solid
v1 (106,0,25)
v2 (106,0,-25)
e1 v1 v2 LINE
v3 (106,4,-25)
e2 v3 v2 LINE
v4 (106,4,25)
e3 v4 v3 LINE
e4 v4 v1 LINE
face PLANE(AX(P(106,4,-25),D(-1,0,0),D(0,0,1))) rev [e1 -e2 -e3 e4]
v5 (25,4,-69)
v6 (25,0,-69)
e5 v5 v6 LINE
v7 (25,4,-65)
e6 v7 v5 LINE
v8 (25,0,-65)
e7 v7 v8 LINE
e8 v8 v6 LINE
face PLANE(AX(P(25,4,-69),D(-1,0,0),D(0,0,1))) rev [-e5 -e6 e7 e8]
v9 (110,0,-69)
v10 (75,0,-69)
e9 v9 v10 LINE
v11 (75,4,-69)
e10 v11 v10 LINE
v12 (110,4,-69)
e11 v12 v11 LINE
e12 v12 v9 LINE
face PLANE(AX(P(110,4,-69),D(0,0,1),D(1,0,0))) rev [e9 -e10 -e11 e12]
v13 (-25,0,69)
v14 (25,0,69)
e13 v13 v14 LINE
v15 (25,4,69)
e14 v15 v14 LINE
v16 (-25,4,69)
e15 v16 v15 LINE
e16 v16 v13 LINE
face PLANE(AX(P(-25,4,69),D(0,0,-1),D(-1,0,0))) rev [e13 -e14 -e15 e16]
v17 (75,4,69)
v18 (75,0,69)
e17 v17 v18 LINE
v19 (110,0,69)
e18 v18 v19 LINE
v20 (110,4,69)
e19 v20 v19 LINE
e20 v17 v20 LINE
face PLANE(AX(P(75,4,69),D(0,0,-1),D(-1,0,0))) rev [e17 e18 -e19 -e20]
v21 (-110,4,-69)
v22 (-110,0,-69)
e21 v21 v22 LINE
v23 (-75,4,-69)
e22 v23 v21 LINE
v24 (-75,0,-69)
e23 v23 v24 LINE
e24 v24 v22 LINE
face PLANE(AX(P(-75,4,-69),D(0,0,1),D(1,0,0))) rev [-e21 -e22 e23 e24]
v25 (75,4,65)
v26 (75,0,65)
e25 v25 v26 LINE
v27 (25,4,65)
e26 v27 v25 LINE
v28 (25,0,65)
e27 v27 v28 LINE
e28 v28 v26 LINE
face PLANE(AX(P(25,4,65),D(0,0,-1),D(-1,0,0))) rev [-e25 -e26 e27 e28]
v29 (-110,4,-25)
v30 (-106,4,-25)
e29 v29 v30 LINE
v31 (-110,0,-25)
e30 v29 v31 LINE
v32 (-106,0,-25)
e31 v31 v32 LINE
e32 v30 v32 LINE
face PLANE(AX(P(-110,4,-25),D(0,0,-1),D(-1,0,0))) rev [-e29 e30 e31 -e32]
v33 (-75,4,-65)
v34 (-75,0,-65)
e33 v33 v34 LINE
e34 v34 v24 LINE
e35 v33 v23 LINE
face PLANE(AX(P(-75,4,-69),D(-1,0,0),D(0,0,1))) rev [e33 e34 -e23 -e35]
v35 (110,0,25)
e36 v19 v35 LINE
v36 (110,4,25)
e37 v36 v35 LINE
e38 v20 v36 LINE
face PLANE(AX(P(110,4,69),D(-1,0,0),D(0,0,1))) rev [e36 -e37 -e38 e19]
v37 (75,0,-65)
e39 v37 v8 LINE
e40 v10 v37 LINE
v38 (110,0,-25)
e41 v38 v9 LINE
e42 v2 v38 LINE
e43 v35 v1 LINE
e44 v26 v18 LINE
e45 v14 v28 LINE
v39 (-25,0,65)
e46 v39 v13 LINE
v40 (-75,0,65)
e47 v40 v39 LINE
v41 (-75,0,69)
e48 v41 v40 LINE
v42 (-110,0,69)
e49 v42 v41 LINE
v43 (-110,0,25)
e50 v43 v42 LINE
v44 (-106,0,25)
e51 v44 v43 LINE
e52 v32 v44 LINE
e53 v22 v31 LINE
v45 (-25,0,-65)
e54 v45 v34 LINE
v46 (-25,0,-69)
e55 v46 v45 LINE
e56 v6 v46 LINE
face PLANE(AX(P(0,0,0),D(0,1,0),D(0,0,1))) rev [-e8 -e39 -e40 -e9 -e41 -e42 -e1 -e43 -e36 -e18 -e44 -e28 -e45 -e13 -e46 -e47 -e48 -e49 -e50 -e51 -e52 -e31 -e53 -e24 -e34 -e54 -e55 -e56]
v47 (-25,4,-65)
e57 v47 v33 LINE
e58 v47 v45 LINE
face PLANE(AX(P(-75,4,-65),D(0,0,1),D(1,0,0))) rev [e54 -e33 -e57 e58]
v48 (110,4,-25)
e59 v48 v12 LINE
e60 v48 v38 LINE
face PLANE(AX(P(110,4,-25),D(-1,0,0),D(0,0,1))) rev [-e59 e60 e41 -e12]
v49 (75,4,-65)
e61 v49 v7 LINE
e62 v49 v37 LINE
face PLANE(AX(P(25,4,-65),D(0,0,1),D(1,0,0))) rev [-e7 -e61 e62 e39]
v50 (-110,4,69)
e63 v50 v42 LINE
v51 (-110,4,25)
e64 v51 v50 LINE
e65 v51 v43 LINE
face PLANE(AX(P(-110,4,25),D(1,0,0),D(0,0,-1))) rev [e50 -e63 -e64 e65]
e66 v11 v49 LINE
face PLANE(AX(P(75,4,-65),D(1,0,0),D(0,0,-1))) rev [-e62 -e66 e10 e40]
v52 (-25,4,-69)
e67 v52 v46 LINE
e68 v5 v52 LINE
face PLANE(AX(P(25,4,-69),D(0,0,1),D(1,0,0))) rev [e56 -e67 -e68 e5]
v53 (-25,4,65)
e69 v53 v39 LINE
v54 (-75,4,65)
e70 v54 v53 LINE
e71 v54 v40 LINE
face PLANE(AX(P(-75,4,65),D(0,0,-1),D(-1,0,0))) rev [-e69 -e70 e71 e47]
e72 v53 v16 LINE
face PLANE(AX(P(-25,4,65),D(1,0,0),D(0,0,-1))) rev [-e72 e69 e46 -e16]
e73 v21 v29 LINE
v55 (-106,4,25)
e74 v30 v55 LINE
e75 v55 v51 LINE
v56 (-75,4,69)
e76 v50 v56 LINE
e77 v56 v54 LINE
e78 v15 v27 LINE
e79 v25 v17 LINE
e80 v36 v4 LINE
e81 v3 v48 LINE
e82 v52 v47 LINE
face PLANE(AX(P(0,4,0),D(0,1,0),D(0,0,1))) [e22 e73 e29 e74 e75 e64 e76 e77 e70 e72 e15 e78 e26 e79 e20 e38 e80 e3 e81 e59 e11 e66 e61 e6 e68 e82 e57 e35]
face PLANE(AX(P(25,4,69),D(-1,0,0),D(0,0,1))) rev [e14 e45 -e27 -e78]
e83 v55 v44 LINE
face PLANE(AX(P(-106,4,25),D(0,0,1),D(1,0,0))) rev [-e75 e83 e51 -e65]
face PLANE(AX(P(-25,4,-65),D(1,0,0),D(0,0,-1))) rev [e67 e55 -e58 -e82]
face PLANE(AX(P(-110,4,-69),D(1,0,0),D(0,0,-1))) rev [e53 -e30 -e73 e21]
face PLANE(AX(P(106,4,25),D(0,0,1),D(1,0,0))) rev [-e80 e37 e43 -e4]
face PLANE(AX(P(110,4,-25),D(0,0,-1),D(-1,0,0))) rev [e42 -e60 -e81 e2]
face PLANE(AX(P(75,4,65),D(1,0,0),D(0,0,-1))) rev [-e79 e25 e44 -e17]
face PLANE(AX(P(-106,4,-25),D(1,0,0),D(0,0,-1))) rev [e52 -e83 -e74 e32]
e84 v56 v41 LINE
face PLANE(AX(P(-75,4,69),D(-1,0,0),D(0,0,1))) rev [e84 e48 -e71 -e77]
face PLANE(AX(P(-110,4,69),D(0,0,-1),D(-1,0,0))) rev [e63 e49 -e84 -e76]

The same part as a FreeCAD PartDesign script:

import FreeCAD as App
import Part
import Sketcher
from FreeCAD import Vector

doc = App.newDocument("Part")
body = doc.addObject("PartDesign::Body", "Body")

# Sketch on XZ plane
sketch1 = body.newObject("Sketcher::SketchObject", "Sketch")
sketch1.AttachmentSupport = (doc.getObject("XZ_Plane"), [""])
sketch1.MapMode = "FlatFace"
sketch1.addGeometry(Part.LineSegment(Vector(-110, -69, 0), Vector(-110, -25, 0)), False)
sketch1.addGeometry(Part.LineSegment(Vector(-110, -25, 0), Vector(-106, -25, 0)), False)
sketch1.addGeometry(Part.LineSegment(Vector(-106, -25, 0), Vector(-106, 25, 0)), False)
sketch1.addGeometry(Part.LineSegment(Vector(-106, 25, 0), Vector(-110, 25, 0)), False)
sketch1.addGeometry(Part.LineSegment(Vector(-110, 25, 0), Vector(-110, 69, 0)), False)
sketch1.addGeometry(Part.LineSegment(Vector(-110, 69, 0), Vector(-75, 69, 0)), False)
sketch1.addGeometry(Part.LineSegment(Vector(-75, 69, 0), Vector(-75, 65, 0)), False)
sketch1.addGeometry(Part.LineSegment(Vector(-75, 65, 0), Vector(-25, 65, 0)), False)
sketch1.addGeometry(Part.LineSegment(Vector(-25, 65, 0), Vector(-25, 69, 0)), False)
sketch1.addGeometry(Part.LineSegment(Vector(-25, 69, 0), Vector(25, 69, 0)), False)
sketch1.addGeometry(Part.LineSegment(Vector(25, 69, 0), Vector(25, 65, 0)), False)
sketch1.addGeometry(Part.LineSegment(Vector(25, 65, 0), Vector(75, 65, 0)), False)
sketch1.addGeometry(Part.LineSegment(Vector(75, 65, 0), Vector(75, 69, 0)), False)
sketch1.addGeometry(Part.LineSegment(Vector(75, 69, 0), Vector(110, 69, 0)), False)
sketch1.addGeometry(Part.LineSegment(Vector(110, 69, 0), Vector(110, 25, 0)), False)
sketch1.addGeometry(Part.LineSegment(Vector(110, 25, 0), Vector(106, 25, 0)), False)
sketch1.addGeometry(Part.LineSegment(Vector(106, 25, 0), Vector(106, -25, 0)), False)
sketch1.addGeometry(Part.LineSegment(Vector(106, -25, 0), Vector(110, -25, 0)), False)
sketch1.addGeometry(Part.LineSegment(Vector(110, -25, 0), Vector(110, -69, 0)), False)
sketch1.addGeometry(Part.LineSegment(Vector(110, -69, 0), Vector(75, -69, 0)), False)
sketch1.addGeometry(Part.LineSegment(Vector(75, -69, 0), Vector(75, -65, 0)), False)
sketch1.addGeometry(Part.LineSegment(Vector(75, -65, 0), Vector(25, -65, 0)), False)
sketch1.addGeometry(Part.LineSegment(Vector(25, -65, 0), Vector(25, -69, 0)), False)
sketch1.addGeometry(Part.LineSegment(Vector(25, -69, 0), Vector(-25, -69, 0)), False)
sketch1.addGeometry(Part.LineSegment(Vector(-25, -69, 0), Vector(-25, -65, 0)), False)
sketch1.addGeometry(Part.LineSegment(Vector(-25, -65, 0), Vector(-75, -65, 0)), False)
sketch1.addGeometry(Part.LineSegment(Vector(-75, -65, 0), Vector(-75, -69, 0)), False)
sketch1.addGeometry(Part.LineSegment(Vector(-75, -69, 0), Vector(-110, -69, 0)), False)
sketch1.addConstraint(Sketcher.Constraint("Coincident", 0, 2, 1, 1))
sketch1.addConstraint(Sketcher.Constraint("Coincident", 1, 2, 2, 1))
sketch1.addConstraint(Sketcher.Constraint("Coincident", 2, 2, 3, 1))
sketch1.addConstraint(Sketcher.Constraint("Coincident", 3, 2, 4, 1))
sketch1.addConstraint(Sketcher.Constraint("Coincident", 4, 2, 5, 1))
sketch1.addConstraint(Sketcher.Constraint("Coincident", 5, 2, 6, 1))
sketch1.addConstraint(Sketcher.Constraint("Coincident", 6, 2, 7, 1))
sketch1.addConstraint(Sketcher.Constraint("Coincident", 7, 2, 8, 1))
sketch1.addConstraint(Sketcher.Constraint("Coincident", 8, 2, 9, 1))
sketch1.addConstraint(Sketcher.Constraint("Coincident", 9, 2, 10, 1))
sketch1.addConstraint(Sketcher.Constraint("Coincident", 10, 2, 11, 1))
sketch1.addConstraint(Sketcher.Constraint("Coincident", 11, 2, 12, 1))
sketch1.addConstraint(Sketcher.Constraint("Coincident", 12, 2, 13, 1))
sketch1.addConstraint(Sketcher.Constraint("Coincident", 13, 2, 14, 1))
sketch1.addConstraint(Sketcher.Constraint("Coincident", 14, 2, 15, 1))
sketch1.addConstraint(Sketcher.Constraint("Coincident", 15, 2, 16, 1))
sketch1.addConstraint(Sketcher.Constraint("Coincident", 16, 2, 17, 1))
sketch1.addConstraint(Sketcher.Constraint("Coincident", 17, 2, 18, 1))
sketch1.addConstraint(Sketcher.Constraint("Coincident", 18, 2, 19, 1))
sketch1.addConstraint(Sketcher.Constraint("Coincident", 19, 2, 20, 1))
sketch1.addConstraint(Sketcher.Constraint("Coincident", 20, 2, 21, 1))
sketch1.addConstraint(Sketcher.Constraint("Coincident", 21, 2, 22, 1))
sketch1.addConstraint(Sketcher.Constraint("Coincident", 22, 2, 23, 1))
sketch1.addConstraint(Sketcher.Constraint("Coincident", 23, 2, 24, 1))
sketch1.addConstraint(Sketcher.Constraint("Coincident", 24, 2, 25, 1))
sketch1.addConstraint(Sketcher.Constraint("Coincident", 25, 2, 26, 1))
sketch1.addConstraint(Sketcher.Constraint("Coincident", 26, 2, 27, 1))
sketch1.addConstraint(Sketcher.Constraint("Coincident", 27, 2, 0, 1))
sketch1.addConstraint(Sketcher.Constraint("Vertical", 0))
sketch1.addConstraint(Sketcher.Constraint("Horizontal", 1))
sketch1.addConstraint(Sketcher.Constraint("Vertical", 2))
sketch1.addConstraint(Sketcher.Constraint("Horizontal", 3))
sketch1.addConstraint(Sketcher.Constraint("Vertical", 4))
sketch1.addConstraint(Sketcher.Constraint("Horizontal", 5))
sketch1.addConstraint(Sketcher.Constraint("Vertical", 6))
sketch1.addConstraint(Sketcher.Constraint("Horizontal", 7))
sketch1.addConstraint(Sketcher.Constraint("Vertical", 8))
sketch1.addConstraint(Sketcher.Constraint("Horizontal", 9))
sketch1.addConstraint(Sketcher.Constraint("Vertical", 10))
sketch1.addConstraint(Sketcher.Constraint("Horizontal", 11))
sketch1.addConstraint(Sketcher.Constraint("Vertical", 12))
sketch1.addConstraint(Sketcher.Constraint("Horizontal", 13))
sketch1.addConstraint(Sketcher.Constraint("Vertical", 14))
sketch1.addConstraint(Sketcher.Constraint("Horizontal", 15))
sketch1.addConstraint(Sketcher.Constraint("Vertical", 16))
sketch1.addConstraint(Sketcher.Constraint("Horizontal", 17))
sketch1.addConstraint(Sketcher.Constraint("Vertical", 18))
sketch1.addConstraint(Sketcher.Constraint("Horizontal", 19))
sketch1.addConstraint(Sketcher.Constraint("Vertical", 20))
sketch1.addConstraint(Sketcher.Constraint("Horizontal", 21))
sketch1.addConstraint(Sketcher.Constraint("Vertical", 22))
sketch1.addConstraint(Sketcher.Constraint("Horizontal", 23))
sketch1.addConstraint(Sketcher.Constraint("Vertical", 24))
sketch1.addConstraint(Sketcher.Constraint("Horizontal", 25))
sketch1.addConstraint(Sketcher.Constraint("Vertical", 26))
sketch1.addConstraint(Sketcher.Constraint("Horizontal", 27))
sketch1.addConstraint(Sketcher.Constraint("Symmetric", 0, 2, 14, 2, -1, 1))
sketch1.addConstraint(Sketcher.Constraint("Symmetric", 2, 2, 16, 2, -1, 1))
sketch1.addConstraint(Sketcher.Constraint("Symmetric", 4, 2, 18, 2, -1, 1))
sketch1.addConstraint(Sketcher.Constraint("Symmetric", 6, 2, 20, 2, -1, 1))
sketch1.addConstraint(Sketcher.Constraint("Symmetric", 8, 2, 22, 2, -1, 1))
sketch1.addConstraint(Sketcher.Constraint("Symmetric", 10, 2, 24, 2, -1, 1))
sketch1.addConstraint(Sketcher.Constraint("Symmetric", 12, 2, 26, 2, -1, 1))
sketch1.addConstraint(Sketcher.Constraint("Symmetric", 7, 2, 10, 2, -2))
sketch1.addConstraint(Sketcher.Constraint("Symmetric", 5, 2, 12, 2, -2))
sketch1.addConstraint(Sketcher.Constraint("Symmetric", 3, 2, 14, 2, -2))
sketch1.addConstraint(Sketcher.Constraint("Horizontal", 5, 2, 8, 2))
sketch1.addConstraint(Sketcher.Constraint("Equal", 7, 9))
sketch1.addConstraint(Sketcher.Constraint("Equal", 25, 2))
sketch1.addConstraint(Sketcher.Constraint("Equal", 17, 6))
sketch1.addConstraint(Sketcher.Constraint("DistanceX", 1, 1, 1, 2, 4.0))
sketch1.addConstraint(Sketcher.Constraint("DistanceX", 5, 1, 5, 2, 35.0))
sketch1.addConstraint(Sketcher.Constraint("DistanceX", 7, 1, 7, 2, 50.0))
sketch1.addConstraint(Sketcher.Constraint("DistanceY", 0, 1, 0, 2, 44.0))
pad1 = body.newObject("PartDesign::Pad", "Pad")
pad1.Profile = sketch1
pad1.Length = 4
pad1.Reversed = True

doc.recompute()
